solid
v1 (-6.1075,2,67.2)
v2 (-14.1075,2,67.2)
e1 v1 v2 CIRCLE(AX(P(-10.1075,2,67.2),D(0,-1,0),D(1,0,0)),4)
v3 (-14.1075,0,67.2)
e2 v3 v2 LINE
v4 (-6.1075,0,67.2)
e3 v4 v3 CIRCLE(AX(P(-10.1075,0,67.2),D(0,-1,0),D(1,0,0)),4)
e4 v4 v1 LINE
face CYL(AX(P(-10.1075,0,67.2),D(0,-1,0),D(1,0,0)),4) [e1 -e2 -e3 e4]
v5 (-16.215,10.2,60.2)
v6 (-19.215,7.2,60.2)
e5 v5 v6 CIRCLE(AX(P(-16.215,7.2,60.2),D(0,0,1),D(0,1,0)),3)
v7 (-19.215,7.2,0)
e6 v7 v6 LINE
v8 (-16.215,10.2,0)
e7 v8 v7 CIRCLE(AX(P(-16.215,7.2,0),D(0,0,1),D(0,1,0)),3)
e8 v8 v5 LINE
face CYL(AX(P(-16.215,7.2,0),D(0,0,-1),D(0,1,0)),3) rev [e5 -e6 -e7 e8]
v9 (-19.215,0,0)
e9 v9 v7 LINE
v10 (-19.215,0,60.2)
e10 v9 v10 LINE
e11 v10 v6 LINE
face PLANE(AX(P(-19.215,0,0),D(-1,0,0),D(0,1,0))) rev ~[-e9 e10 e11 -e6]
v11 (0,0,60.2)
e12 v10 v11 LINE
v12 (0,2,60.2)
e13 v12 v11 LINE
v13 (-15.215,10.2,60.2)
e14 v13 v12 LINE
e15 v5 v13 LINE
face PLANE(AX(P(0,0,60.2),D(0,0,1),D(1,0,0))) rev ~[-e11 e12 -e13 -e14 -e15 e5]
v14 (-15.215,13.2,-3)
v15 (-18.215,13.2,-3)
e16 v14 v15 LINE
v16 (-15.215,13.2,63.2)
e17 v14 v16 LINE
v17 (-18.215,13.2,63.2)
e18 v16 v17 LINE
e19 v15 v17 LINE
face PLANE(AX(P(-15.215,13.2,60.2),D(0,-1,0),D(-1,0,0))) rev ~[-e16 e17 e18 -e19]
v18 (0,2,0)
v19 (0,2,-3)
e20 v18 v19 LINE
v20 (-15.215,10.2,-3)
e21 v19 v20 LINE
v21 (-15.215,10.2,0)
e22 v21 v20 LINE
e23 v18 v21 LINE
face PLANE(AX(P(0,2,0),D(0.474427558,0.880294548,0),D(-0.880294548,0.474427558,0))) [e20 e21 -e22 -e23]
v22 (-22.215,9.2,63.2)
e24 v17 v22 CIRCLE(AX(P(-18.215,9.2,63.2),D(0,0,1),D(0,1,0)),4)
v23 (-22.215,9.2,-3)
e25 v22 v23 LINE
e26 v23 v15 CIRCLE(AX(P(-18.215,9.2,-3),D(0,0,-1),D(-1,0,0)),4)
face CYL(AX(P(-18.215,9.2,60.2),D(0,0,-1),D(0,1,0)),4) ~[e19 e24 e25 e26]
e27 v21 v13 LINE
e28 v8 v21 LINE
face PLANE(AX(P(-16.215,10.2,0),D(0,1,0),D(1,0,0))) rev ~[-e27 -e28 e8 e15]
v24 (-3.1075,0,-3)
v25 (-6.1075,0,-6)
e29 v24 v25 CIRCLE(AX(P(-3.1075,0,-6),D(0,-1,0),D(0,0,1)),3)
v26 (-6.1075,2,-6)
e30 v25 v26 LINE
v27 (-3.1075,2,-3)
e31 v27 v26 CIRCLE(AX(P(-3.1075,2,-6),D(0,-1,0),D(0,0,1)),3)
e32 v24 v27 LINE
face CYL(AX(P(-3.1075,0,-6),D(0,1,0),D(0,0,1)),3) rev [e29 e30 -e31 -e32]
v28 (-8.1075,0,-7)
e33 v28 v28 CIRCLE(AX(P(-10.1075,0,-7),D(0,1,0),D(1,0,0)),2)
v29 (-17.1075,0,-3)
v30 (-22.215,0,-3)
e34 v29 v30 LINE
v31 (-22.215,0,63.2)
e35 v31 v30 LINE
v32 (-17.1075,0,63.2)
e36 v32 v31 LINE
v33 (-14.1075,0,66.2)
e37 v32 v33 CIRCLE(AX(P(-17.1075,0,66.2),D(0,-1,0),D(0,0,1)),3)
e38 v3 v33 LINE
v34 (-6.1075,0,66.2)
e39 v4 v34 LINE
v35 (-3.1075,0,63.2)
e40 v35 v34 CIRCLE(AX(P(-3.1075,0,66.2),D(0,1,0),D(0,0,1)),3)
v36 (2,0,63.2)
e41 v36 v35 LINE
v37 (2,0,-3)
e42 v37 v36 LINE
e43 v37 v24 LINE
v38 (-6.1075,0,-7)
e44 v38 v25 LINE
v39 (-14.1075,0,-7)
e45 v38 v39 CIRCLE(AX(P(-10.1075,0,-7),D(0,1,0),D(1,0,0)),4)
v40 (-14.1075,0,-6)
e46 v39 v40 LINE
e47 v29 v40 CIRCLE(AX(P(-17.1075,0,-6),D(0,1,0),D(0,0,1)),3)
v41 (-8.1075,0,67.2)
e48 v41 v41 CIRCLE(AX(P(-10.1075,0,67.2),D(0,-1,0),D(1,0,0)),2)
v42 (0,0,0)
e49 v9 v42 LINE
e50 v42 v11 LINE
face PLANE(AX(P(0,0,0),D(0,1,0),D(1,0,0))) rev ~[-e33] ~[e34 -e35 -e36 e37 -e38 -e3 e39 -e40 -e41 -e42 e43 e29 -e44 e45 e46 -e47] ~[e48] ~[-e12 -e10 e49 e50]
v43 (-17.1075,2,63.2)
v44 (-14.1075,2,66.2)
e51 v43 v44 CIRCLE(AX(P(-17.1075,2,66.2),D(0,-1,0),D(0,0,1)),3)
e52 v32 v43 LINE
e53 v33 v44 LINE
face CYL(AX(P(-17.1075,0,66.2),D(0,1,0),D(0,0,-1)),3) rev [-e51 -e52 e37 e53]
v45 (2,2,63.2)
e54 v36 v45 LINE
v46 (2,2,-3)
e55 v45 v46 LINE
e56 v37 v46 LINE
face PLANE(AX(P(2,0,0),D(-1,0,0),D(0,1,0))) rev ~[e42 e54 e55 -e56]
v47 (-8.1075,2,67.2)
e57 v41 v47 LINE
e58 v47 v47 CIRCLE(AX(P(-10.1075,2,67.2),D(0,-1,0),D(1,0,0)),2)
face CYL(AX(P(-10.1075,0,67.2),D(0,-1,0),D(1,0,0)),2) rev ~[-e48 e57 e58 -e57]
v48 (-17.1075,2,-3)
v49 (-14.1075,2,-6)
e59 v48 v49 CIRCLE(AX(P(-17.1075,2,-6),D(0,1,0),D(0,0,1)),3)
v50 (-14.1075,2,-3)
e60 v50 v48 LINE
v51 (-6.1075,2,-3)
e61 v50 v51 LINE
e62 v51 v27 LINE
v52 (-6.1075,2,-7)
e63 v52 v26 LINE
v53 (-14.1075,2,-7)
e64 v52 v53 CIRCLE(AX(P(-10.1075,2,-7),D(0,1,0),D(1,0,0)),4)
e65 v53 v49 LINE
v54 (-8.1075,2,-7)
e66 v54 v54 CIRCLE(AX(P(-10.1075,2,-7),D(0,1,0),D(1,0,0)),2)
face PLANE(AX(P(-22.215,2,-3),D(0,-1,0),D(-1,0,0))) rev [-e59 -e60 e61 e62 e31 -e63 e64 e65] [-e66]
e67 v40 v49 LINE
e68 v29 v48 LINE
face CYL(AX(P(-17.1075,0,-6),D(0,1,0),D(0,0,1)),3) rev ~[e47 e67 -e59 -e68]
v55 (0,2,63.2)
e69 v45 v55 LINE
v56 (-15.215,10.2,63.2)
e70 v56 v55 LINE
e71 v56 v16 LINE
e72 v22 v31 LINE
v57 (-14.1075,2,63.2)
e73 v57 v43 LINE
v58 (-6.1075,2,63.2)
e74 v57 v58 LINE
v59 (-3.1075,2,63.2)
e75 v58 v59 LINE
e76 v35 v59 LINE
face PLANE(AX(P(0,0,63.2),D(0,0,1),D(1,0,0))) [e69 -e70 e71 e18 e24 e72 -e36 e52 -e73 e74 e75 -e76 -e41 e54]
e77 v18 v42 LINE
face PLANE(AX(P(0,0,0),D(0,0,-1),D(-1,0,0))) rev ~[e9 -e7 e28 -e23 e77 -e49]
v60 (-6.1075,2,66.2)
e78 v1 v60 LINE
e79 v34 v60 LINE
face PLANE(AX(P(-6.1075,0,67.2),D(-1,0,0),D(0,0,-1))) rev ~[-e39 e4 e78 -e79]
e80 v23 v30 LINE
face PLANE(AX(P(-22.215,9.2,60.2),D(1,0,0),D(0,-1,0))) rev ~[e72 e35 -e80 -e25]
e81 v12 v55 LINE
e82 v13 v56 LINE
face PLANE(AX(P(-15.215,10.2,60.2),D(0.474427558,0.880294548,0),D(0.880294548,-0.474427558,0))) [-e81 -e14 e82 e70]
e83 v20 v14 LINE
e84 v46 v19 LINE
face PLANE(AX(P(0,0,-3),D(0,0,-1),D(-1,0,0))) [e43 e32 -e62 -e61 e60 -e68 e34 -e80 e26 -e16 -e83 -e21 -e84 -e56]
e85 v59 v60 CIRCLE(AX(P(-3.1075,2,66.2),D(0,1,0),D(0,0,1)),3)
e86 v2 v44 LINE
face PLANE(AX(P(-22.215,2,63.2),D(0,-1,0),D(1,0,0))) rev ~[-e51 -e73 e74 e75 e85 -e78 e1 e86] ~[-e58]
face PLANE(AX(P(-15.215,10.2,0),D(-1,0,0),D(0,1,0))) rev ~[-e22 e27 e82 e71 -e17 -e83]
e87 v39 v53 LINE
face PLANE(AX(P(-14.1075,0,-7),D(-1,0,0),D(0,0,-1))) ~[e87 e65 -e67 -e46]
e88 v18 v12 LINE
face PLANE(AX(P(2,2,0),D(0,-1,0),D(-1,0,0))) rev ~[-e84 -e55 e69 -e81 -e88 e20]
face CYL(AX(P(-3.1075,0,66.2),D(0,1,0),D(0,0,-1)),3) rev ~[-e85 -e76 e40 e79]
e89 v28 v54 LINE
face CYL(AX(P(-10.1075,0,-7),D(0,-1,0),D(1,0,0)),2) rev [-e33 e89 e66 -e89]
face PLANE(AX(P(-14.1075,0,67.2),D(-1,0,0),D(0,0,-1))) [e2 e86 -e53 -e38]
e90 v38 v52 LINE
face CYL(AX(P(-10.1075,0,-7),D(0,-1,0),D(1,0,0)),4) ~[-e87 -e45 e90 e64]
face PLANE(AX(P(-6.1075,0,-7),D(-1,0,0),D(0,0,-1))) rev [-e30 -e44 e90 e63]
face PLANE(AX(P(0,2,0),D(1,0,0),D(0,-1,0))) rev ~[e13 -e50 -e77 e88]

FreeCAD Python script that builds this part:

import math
import FreeCAD as App
import Part
import Sketcher

V = App.Vector
Q = App.Units.Quantity


def edges_at(feature, points):
    """Names of the edges that pass closest to the given points."""
    edges = feature.Shape.Edges
    near = lambda p: min(range(len(edges)), key=lambda i: edges[i].distToShape(Part.Vertex(*p))[0])
    return sorted({f"Edge{near(p) + 1}" for p in points})


def add_polygon(sketch, points):
    """Adds a closed chain of lines whose ends are joined by coincident constraints."""
    first, n = sketch.GeometryCount, len(points)
    for a, b in zip(points, points[1:] + points[:1]):
        sketch.addGeometry(Part.LineSegment(App.Vector(*a, 0), App.Vector(*b, 0)), False)
    for i in range(n):
        sketch.addConstraint(Sketcher.Constraint("Coincident", first + i, 2, first + (i + 1) % n, 1))

doc = App.newDocument("Part")
body = doc.addObject("PartDesign::Body", "Body")
body.AllowCompound = True

# Sketch on XY plane
sketch1 = body.newObject("Sketcher::SketchObject", "Sketch")
sketch1.AttachmentSupport = (doc.getObject("XY_Plane"), [""])
sketch1.MapMode = "FlatFace"
add_polygon(sketch1, [(0, 2), (0, 0), (2, 0), (2, 2)])  # lines 0-3
sketch1.addGeometry(Part.LineSegment(V(-22.2, 0, 0), V(-19.2, 0, 0)), False)  # 4
sketch1.addGeometry(Part.LineSegment(V(-19.2, 0, 0), V(-19.2, 7.2, 0)), False)  # 5
sketch1.addGeometry(Part.ArcOfCircle(Part.Circle(V(-16.2, 7.2, 0), V(0, 0, 1), 3), math.radians(90), math.radians(180)), False)  # 6
sketch1.addGeometry(Part.LineSegment(V(-16.2, 10.2, 0), V(-15.2, 10.2, 0)), False)  # 7
sketch1.addGeometry(Part.LineSegment(V(-15.2, 10.2, 0), V(-15.2, 13.2, 0)), False)  # 8
sketch1.addGeometry(Part.LineSegment(V(-15.2, 13.2, 0), V(-18.2, 13.2, 0)), False)  # 9
sketch1.addGeometry(Part.ArcOfCircle(Part.Circle(V(-18.2, 9.2, 0), V(0, 0, 1), 4), math.radians(90), math.radians(180)), False)  # 10
sketch1.addGeometry(Part.LineSegment(V(-22.2, 9.2, 0), V(-22.2, 0, 0)), False)  # 11
sketch1.addConstraint([
    Sketcher.Constraint("Coincident", 4, 2, 5, 1),
    Sketcher.Constraint("Tangent", 5, 2, 6, 2),
    Sketcher.Constraint("Tangent", 6, 1, 7, 1),
    Sketcher.Constraint("Coincident", 7, 2, 8, 1),
    Sketcher.Constraint("Coincident", 8, 2, 9, 1),
    Sketcher.Constraint("Tangent", 9, 2, 10, 1),
    Sketcher.Constraint("Tangent", 10, 2, 11, 1),
    Sketcher.Constraint("Coincident", 11, 2, 4, 1),
    Sketcher.Constraint("Vertical", 0),
    Sketcher.Constraint("Horizontal", 1),
    Sketcher.Constraint("Vertical", 2),
    Sketcher.Constraint("Horizontal", 3),
    Sketcher.Constraint("Horizontal", 4),
    Sketcher.Constraint("Vertical", 5),
    Sketcher.Constraint("Horizontal", 7),
    Sketcher.Constraint("Vertical", 8),
    Sketcher.Constraint("Horizontal", 9),
    Sketcher.Constraint("Vertical", 11),
    Sketcher.Constraint("Coincident", 0, 2, -1, 1),
    Sketcher.Constraint("PointOnObject", 4, 2, -1),
    Sketcher.Constraint("Equal", 4, 9),
    Sketcher.Constraint("Equal", 3, 0),
    Sketcher.Constraint("Equal", 9, 8),
    Sketcher.Constraint("Radius", 6, Q("3 mm")),
    Sketcher.Constraint("Radius", 10, Q("4 mm")),
    Sketcher.Constraint("DistanceX", 1, 1, 1, 2, Q("2 mm")),
    Sketcher.Constraint("DistanceX", 4, 1, 4, 2, Q("3 mm")),
    Sketcher.Constraint("DistanceY", -1, 1, 6, 1, Q("10.2 mm")),
    Sketcher.Constraint("DistanceX", 4, 2, -1, 1, Q("19.215 mm")),
])
pad1 = body.newObject("PartDesign::Pad", "Pad")
pad1.Profile = sketch1
pad1.Length = 60.2

# Sketch on XY plane
sketch2 = body.newObject("Sketcher::SketchObject", "Sketch001")
sketch2.AttachmentSupport = (doc.getObject("XY_Plane"), [""])
sketch2.MapMode = "FlatFace"
sketch2.AttachmentOffset = App.Placement(V(0, 0, 60.2), App.Rotation())
sketch2.addGeometry([
    Part.LineSegment(V(-22.2, 0, 0), V(2, 0, 0)),  # 0
    Part.LineSegment(V(2, 0, 0), V(2, 2, 0)),  # 1
    Part.LineSegment(V(2, 2, 0), V(0, 2, 0)),  # 2
    Part.LineSegment(V(0, 2, 0), V(-15.2, 10.2, 0)),  # 3
    Part.LineSegment(V(-15.2, 10.2, 0), V(-15.2, 13.2, 0)),  # 4
    Part.LineSegment(V(-15.2, 13.2, 0), V(-18.2, 13.2, 0)),  # 5
    Part.ArcOfCircle(Part.Circle(V(-18.2, 9.2, 0), V(0, 0, 1), 4), math.radians(90), math.radians(180)),  # 6
    Part.LineSegment(V(-22.2, 9.2, 0), V(-22.2, 0, 0)),  # 7
], False)
sketch2.addConstraint([
    Sketcher.Constraint("Coincident", 0, 2, 1, 1),
    Sketcher.Constraint("Coincident", 1, 2, 2, 1),
    Sketcher.Constraint("Coincident", 2, 2, 3, 1),
    Sketcher.Constraint("Coincident", 3, 2, 4, 1),
    Sketcher.Constraint("Coincident", 4, 2, 5, 1),
    Sketcher.Constraint("Tangent", 5, 2, 6, 1),
    Sketcher.Constraint("Tangent", 6, 2, 7, 1),
    Sketcher.Constraint("Coincident", 7, 2, 0, 1),
    Sketcher.Constraint("Horizontal", 0),
    Sketcher.Constraint("Vertical", 1),
    Sketcher.Constraint("Horizontal", 2),
    Sketcher.Constraint("Vertical", 4),
    Sketcher.Constraint("Horizontal", 5),
    Sketcher.Constraint("Vertical", 7),
    Sketcher.Constraint("PointOnObject", 0, 2, -1),
    Sketcher.Constraint("PointOnObject", 2, 2, -2),
    Sketcher.Constraint("Equal", 2, 1),
    Sketcher.Constraint("Equal", 5, 4),
    Sketcher.Constraint("Radius", 6, Q("4 mm")),
    Sketcher.Constraint("DistanceX", 2, 2, 2, 1, Q("2 mm")),
    Sketcher.Constraint("DistanceX", 5, 2, 5, 1, Q("3 mm")),
    Sketcher.Constraint("DistanceY", 7, 2, 7, 1, Q("9.2 mm")),
    Sketcher.Constraint("DistanceX", 0, 1, 0, 2, Q("24.215 mm")),
])
pad2 = body.newObject("PartDesign::Pad", "Pad001")
pad2.Profile = sketch2
pad2.Length = 3

# Sketch on XY plane
sketch3 = body.newObject("Sketcher::SketchObject", "Sketch002")
sketch3.AttachmentSupport = (doc.getObject("XY_Plane"), [""])
sketch3.MapMode = "FlatFace"
sketch3.addGeometry([
    Part.LineSegment(V(-15.2, 10.2, 0), V(0, 2, 0)),  # 0
    Part.LineSegment(V(0, 2, 0), V(2, 2, 0)),  # 1
    Part.LineSegment(V(2, 2, 0), V(2, 0, 0)),  # 2
    Part.LineSegment(V(2, 0, 0), V(-22.2, 0, 0)),  # 3
    Part.LineSegment(V(-22.2, 0, 0), V(-22.2, 9.2, 0)),  # 4
    Part.ArcOfCircle(Part.Circle(V(-18.2, 9.2, 0), V(0, 0, 1), 4), math.radians(90), math.radians(180)),  # 5
    Part.LineSegment(V(-18.2, 13.2, 0), V(-15.2, 13.2, 0)),  # 6
    Part.LineSegment(V(-15.2, 13.2, 0), V(-15.2, 10.2, 0)),  # 7
], False)
sketch3.addConstraint([
    Sketcher.Constraint("Coincident", 0, 2, 1, 1),
    Sketcher.Constraint("Coincident", 1, 2, 2, 1),
    Sketcher.Constraint("Coincident", 2, 2, 3, 1),
    Sketcher.Constraint("Coincident", 3, 2, 4, 1),
    Sketcher.Constraint("Tangent", 4, 2, 5, 2),
    Sketcher.Constraint("Tangent", 5, 1, 6, 1),
    Sketcher.Constraint("Coincident", 6, 2, 7, 1),
    Sketcher.Constraint("Coincident", 7, 2, 0, 1),
    Sketcher.Constraint("Horizontal", 1),
    Sketcher.Constraint("Vertical", 2),
    Sketcher.Constraint("Horizontal", 3),
    Sketcher.Constraint("Vertical", 4),
    Sketcher.Constraint("Horizontal", 6),
    Sketcher.Constraint("Vertical", 7),
    Sketcher.Constraint("PointOnObject", 0, 2, -2),
    Sketcher.Constraint("PointOnObject", 2, 2, -1),
    Sketcher.Constraint("Equal", 1, 2),
    Sketcher.Constraint("Equal", 6, 7),
    Sketcher.Constraint("Radius", 5, Q("4 mm")),
    Sketcher.Constraint("DistanceX", 1, 1, 1, 2, Q("2 mm")),
    Sketcher.Constraint("DistanceX", 6, 1, 6, 2, Q("3 mm")),
    Sketcher.Constraint("DistanceY", 4, 1, 4, 2, Q("9.2 mm")),
    Sketcher.Constraint("DistanceX", 3, 2, 3, 1, Q("24.215 mm")),
])
pad3 = body.newObject("PartDesign::Pad", "Pad002")
pad3.Profile = sketch3
pad3.Length = 3
pad3.Reversed = True

# Sketch on XZ plane
sketch4 = body.newObject("Sketcher::SketchObject", "Sketch003")
sketch4.AttachmentSupport = (doc.getObject("XZ_Plane"), [""])
sketch4.MapMode = "FlatFace"
sketch4.addGeometry([
    Part.LineSegment(V(-14.1, 67.2, 0), V(-14.1, 63.2, 0)),  # 0
    Part.LineSegment(V(-14.1, 63.2, 0), V(-6.1, 63.2, 0)),  # 1
    Part.LineSegment(V(-6.1, 63.2, 0), V(-6.1, 67.2, 0)),  # 2
    Part.ArcOfCircle(Part.Circle(V(-10.1, 67.2, 0), V(0, 0, 1), 4), math.radians(0), math.radians(180)),  # 3
    Part.Circle(V(-10.1, 67.2, 0), V(0, 0, 1), 2),  # 4
], False)
sketch4.addConstraint([
    Sketcher.Constraint("Coincident", 0, 2, 1, 1),
    Sketcher.Constraint("Coincident", 1, 2, 2, 1),
    Sketcher.Constraint("Tangent", 2, 2, 3, 1),
    Sketcher.Constraint("Tangent", 3, 2, 0, 1),
    Sketcher.Constraint("Vertical", 0),
    Sketcher.Constraint("Horizontal", 1),
    Sketcher.Constraint("Vertical", 2),
    Sketcher.Constraint("Coincident", 4, 3, 3, 3),
    Sketcher.Constraint("Diameter", 4, Q("4 mm")),
    Sketcher.Constraint("Radius", 3, Q("4 mm")),
    Sketcher.Constraint("DistanceY", 0, 2, 0, 1, Q("4 mm")),
    Sketcher.Constraint("DistanceY", -1, 1, 3, 3, Q("67.2 mm")),
    Sketcher.Constraint("DistanceX", 3, 3, -1, 1, Q("10.1075 mm")),
])
pad4 = body.newObject("PartDesign::Pad", "Pad003")
pad4.Profile = sketch4
pad4.Length = 2
pad4.Reversed = True
doc.recompute()

datumplane = body.newObject("PartDesign::Plane", "DatumPlane")
datumplane.AttachmentSupport = (doc.getObject("XY_Plane"), [""])
datumplane.MapMode = "FlatFace"
datumplane.AttachmentOffset = App.Placement(V(0, 0, 30.1), App.Rotation())
mirrored = body.newObject("PartDesign::Mirrored", "Mirrored")
mirrored.Originals = [pad4]
mirrored.MirrorPlane = (datumplane, [""])
body.Tip = mirrored
doc.recompute()

fillet = body.newObject("PartDesign::Fillet", "Fillet")
fillet.Base = (mirrored, edges_at(mirrored, [
    (-14.107, 1, -3),
    (-6.107, 1, -3),
    (-6.107, 1, 63.2),
    (-14.107, 1, 63.2),
]))
fillet.Radius = 3

doc.recompute()
